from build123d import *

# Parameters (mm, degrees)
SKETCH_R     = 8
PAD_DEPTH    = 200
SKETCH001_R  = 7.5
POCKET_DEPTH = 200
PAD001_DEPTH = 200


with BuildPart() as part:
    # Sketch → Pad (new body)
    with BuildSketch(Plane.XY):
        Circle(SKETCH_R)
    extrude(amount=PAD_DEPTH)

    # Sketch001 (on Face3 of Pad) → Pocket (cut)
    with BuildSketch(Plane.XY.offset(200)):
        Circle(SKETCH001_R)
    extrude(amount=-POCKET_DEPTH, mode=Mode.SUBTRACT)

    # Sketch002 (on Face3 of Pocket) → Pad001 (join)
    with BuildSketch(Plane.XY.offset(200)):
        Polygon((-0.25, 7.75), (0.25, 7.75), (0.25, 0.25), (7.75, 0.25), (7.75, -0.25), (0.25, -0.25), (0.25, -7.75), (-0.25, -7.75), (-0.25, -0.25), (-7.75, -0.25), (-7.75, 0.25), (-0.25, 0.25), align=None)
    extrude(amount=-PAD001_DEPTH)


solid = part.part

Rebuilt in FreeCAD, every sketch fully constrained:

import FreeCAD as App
import Part
import Sketcher
from FreeCAD import Vector

doc = App.newDocument("Part")
body = doc.addObject("PartDesign::Body", "Body")

# Sketch on XY plane
sketch1 = doc.addObject("Sketcher::SketchObject", "Sketch")
body.addObject(sketch1)
sketch1.AttachmentSupport = (doc.XY_Plane, [""])
sketch1.MapMode = "FlatFace"
sketch1.addGeometry(Part.Circle(Vector(0, 0, 0), Vector(0, 0, 1), 8), False)
sketch1.addConstraint([
    Sketcher.Constraint("Coincident", 0, 3, -1, 1),
    Sketcher.Constraint("Diameter", 0, 16.0),
])
pad1 = doc.addObject("PartDesign::Pad", "Pad")
body.addObject(pad1)
pad1.Profile = sketch1
pad1.Length = 200

# Sketch on XY plane
sketch2 = doc.addObject("Sketcher::SketchObject", "Sketch001")
body.addObject(sketch2)
sketch2.AttachmentSupport = (doc.XY_Plane, [""])
sketch2.MapMode = "FlatFace"
sketch2.AttachmentOffset = App.Placement(Vector(0, 0, 200), App.Rotation())
sketch2.addGeometry(Part.Circle(Vector(0, 0, 0), Vector(0, 0, 1), 8), False)
sketch2.addConstraint([
    Sketcher.Constraint("Coincident", 0, 3, -1, 1),
    Sketcher.Constraint("Diameter", 0, 15.0),
])
pocket1 = doc.addObject("PartDesign::Pocket", "Pocket")
body.addObject(pocket1)
pocket1.Profile = sketch2
pocket1.Length = 200

# Sketch on XY plane
sketch3 = doc.addObject("Sketcher::SketchObject", "Sketch002")
body.addObject(sketch3)
sketch3.AttachmentSupport = (doc.XY_Plane, [""])
sketch3.MapMode = "FlatFace"
sketch3.AttachmentOffset = App.Placement(Vector(0, 0, 200), App.Rotation())
sketch3.addGeometry([
    Part.LineSegment(Vector(0.2, 7.8, 0), Vector(-0.2, 7.8, 0)),  # 0
    Part.LineSegment(Vector(-0.2, 7.8, 0), Vector(-0.2, 0.2, 0)),  # 1
    Part.LineSegment(Vector(-0.2, 0.2, 0), Vector(-7.8, 0.2, 0)),  # 2
    Part.LineSegment(Vector(-7.8, 0.2, 0), Vector(-7.8, -0.2, 0)),  # 3
    Part.LineSegment(Vector(-7.8, -0.2, 0), Vector(-0.2, -0.2, 0)),  # 4
    Part.LineSegment(Vector(-0.2, -0.2, 0), Vector(-0.2, -7.8, 0)),  # 5
    Part.LineSegment(Vector(-0.2, -7.8, 0), Vector(0.2, -7.8, 0)),  # 6
    Part.LineSegment(Vector(0.2, -7.8, 0), Vector(0.2, -0.2, 0)),  # 7
    Part.LineSegment(Vector(0.2, -0.2, 0), Vector(7.8, -0.2, 0)),  # 8
    Part.LineSegment(Vector(7.8, -0.2, 0), Vector(7.8, 0.2, 0)),  # 9
    Part.LineSegment(Vector(7.8, 0.2, 0), Vector(0.2, 0.2, 0)),  # 10
    Part.LineSegment(Vector(0.2, 0.2, 0), Vector(0.2, 7.8, 0)),  # 11
], False)
sketch3.addConstraint([
    Sketcher.Constraint("Coincident", 0, 2, 1, 1),
    Sketcher.Constraint("Coincident", 1, 2, 2, 1),
    Sketcher.Constraint("Coincident", 2, 2, 3, 1),
    Sketcher.Constraint("Coincident", 3, 2, 4, 1),
    Sketcher.Constraint("Coincident", 4, 2, 5, 1),
    Sketcher.Constraint("Coincident", 5, 2, 6, 1),
    Sketcher.Constraint("Coincident", 6, 2, 7, 1),
    Sketcher.Constraint("Coincident", 7, 2, 8, 1),
    Sketcher.Constraint("Coincident", 8, 2, 9, 1),
    Sketcher.Constraint("Coincident", 9, 2, 10, 1),
    Sketcher.Constraint("Coincident", 10, 2, 11, 1),
    Sketcher.Constraint("Coincident", 11, 2, 0, 1),
    Sketcher.Constraint("Horizontal", 0),
    Sketcher.Constraint("Vertical", 1),
    Sketcher.Constraint("Horizontal", 2),
    Sketcher.Constraint("Vertical", 3),
    Sketcher.Constraint("Horizontal", 4),
    Sketcher.Constraint("Vertical", 5),
    Sketcher.Constraint("Horizontal", 6),
    Sketcher.Constraint("Vertical", 7),
    Sketcher.Constraint("Horizontal", 8),
    Sketcher.Constraint("Vertical", 9),
    Sketcher.Constraint("Horizontal", 10),
    Sketcher.Constraint("Vertical", 11),
    Sketcher.Constraint("Symmetric", 0, 2, 6, 2, -1, 1),
    Sketcher.Constraint("Symmetric", 2, 2, 8, 2, -1, 1),
    Sketcher.Constraint("Symmetric", 4, 2, 10, 2, -1, 1),
    Sketcher.Constraint("Symmetric", 4, 2, 7, 2, -2),
    Sketcher.Constraint("Equal", 10, 1),
    Sketcher.Constraint("Equal", 6, 3),
    Sketcher.Constraint("DistanceX", 0, 2, 0, 1, 0.5),
    Sketcher.Constraint("DistanceX", 2, 2, 2, 1, 7.5),
])
pad2 = doc.addObject("PartDesign::Pad", "Pad001")
body.addObject(pad2)
pad2.Profile = sketch3
pad2.Length = 200
pad2.Reversed = True

doc.recompute()
